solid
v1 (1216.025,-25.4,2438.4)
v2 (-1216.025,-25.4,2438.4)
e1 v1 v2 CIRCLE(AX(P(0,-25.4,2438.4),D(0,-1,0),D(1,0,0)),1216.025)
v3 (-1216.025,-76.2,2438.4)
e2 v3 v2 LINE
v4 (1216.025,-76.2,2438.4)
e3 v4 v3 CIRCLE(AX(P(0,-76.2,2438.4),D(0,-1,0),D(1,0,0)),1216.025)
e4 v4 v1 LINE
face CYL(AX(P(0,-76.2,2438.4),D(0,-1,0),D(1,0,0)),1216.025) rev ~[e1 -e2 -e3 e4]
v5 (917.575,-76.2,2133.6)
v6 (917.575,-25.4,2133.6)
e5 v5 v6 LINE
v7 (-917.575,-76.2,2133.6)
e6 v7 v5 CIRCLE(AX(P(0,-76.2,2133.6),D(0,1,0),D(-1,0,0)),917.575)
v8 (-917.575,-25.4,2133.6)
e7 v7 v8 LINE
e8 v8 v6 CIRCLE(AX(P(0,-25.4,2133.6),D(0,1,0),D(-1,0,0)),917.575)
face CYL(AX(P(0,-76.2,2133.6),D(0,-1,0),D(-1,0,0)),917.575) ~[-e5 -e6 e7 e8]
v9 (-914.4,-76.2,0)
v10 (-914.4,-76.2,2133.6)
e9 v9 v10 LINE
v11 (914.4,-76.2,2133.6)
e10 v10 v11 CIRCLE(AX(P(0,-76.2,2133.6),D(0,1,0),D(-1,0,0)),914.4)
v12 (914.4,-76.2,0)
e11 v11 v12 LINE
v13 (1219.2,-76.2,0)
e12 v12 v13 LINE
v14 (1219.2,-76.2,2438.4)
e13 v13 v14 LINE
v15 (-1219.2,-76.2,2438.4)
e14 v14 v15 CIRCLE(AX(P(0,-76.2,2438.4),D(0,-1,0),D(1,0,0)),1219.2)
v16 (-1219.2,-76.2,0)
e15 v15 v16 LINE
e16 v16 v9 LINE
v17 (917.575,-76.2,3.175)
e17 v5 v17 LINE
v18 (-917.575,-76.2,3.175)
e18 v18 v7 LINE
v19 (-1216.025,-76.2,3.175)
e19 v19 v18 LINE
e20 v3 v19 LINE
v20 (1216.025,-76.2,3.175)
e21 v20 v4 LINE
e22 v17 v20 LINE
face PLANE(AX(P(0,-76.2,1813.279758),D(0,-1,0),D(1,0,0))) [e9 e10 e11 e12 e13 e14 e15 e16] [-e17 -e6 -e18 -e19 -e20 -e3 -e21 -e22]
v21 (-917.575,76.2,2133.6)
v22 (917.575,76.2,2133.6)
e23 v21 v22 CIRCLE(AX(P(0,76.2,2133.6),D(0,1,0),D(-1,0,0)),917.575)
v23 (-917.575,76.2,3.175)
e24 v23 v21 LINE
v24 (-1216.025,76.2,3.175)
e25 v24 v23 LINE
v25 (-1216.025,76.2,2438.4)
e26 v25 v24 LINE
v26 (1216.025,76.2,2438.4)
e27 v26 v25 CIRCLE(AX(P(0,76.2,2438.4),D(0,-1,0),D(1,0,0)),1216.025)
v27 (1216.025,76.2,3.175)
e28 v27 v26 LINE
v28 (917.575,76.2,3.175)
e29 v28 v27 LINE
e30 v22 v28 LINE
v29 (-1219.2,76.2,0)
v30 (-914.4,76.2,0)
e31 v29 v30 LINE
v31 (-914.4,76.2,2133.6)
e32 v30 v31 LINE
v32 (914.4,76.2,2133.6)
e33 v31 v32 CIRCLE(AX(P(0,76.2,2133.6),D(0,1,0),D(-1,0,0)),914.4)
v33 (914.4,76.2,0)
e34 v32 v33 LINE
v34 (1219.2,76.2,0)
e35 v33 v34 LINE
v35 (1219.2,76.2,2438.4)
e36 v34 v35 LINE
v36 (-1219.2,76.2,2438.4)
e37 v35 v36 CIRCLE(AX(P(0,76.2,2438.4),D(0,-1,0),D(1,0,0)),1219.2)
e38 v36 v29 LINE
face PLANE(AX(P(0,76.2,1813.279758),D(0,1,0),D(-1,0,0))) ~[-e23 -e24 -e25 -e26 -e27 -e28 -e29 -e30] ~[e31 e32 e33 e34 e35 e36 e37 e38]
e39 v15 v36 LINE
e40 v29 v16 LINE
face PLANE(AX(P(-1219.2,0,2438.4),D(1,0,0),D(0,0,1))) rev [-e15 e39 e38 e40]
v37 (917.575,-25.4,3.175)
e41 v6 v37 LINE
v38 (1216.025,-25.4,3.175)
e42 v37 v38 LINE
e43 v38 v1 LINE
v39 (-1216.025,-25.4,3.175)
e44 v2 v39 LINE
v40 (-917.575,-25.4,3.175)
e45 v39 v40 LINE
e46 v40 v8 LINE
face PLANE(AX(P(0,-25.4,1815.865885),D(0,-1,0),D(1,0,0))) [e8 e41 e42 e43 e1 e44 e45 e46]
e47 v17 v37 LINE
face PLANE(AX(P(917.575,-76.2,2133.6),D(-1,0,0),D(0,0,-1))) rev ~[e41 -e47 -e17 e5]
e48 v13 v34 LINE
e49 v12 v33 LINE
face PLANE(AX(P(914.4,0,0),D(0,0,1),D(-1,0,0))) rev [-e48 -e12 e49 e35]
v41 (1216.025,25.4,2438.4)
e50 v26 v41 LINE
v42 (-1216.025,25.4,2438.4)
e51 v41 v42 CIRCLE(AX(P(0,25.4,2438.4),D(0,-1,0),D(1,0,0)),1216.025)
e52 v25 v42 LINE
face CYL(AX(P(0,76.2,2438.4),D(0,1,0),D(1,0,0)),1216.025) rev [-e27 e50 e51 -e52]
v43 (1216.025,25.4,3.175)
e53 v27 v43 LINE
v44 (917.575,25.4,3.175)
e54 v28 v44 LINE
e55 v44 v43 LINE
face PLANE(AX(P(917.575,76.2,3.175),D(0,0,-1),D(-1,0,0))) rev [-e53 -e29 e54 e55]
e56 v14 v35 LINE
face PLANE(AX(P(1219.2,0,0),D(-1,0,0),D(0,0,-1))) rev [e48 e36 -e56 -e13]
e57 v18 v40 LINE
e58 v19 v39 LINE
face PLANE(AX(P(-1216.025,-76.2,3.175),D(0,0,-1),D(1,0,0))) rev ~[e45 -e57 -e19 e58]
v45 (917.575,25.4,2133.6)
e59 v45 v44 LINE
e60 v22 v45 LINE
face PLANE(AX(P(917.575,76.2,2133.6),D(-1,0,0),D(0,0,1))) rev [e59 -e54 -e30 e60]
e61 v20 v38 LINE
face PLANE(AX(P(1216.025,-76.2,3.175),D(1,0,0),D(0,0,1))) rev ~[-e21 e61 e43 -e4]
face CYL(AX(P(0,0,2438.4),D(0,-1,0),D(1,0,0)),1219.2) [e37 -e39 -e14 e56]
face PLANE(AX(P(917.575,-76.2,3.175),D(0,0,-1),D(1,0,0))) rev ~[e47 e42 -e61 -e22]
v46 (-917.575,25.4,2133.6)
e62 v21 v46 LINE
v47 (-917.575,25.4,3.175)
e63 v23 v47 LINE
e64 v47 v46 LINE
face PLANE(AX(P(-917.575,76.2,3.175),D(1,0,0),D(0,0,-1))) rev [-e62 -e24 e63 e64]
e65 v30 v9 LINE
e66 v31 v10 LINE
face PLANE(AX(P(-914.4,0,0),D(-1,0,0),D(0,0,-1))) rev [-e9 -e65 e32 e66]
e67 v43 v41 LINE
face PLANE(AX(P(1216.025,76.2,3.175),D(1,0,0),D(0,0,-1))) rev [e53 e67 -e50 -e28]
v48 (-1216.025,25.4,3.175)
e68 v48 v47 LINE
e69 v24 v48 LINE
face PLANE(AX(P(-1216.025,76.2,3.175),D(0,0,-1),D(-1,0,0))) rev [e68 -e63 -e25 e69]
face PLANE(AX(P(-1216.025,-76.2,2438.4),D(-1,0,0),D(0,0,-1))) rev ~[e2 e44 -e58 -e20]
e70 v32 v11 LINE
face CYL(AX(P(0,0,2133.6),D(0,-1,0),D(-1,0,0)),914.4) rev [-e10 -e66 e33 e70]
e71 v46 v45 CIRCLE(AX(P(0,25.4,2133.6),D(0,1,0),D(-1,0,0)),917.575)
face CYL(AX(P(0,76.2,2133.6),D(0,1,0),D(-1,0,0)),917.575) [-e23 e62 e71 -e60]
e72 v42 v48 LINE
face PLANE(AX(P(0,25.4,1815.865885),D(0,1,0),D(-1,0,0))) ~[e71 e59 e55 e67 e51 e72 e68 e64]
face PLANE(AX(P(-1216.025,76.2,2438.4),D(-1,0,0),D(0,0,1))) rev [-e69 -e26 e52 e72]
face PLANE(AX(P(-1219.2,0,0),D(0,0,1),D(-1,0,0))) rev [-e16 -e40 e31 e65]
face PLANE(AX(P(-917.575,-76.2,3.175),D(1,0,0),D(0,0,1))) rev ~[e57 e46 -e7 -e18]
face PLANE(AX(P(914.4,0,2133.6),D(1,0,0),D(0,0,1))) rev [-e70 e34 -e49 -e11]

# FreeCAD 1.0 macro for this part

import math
import FreeCAD as App
import Part
import Sketcher

V = App.Vector
Q = App.Units.Quantity

doc = App.newDocument("Part")
body = doc.addObject("PartDesign::Body", "Body")

# Sketch on XZ plane
sketch1 = body.newObject("Sketcher::SketchObject", "Sketch")
sketch1.AttachmentSupport = (doc.getObject("XZ_Plane"), [""])
sketch1.MapMode = "FlatFace"
sketch1.addGeometry(Part.LineSegment(V(-1219, 2438, 0), V(-1219, 0, 0)), False)
sketch1.addGeometry(Part.LineSegment(V(-1219, 0, 0), V(-914, 0, 0)), False)
sketch1.addGeometry(Part.LineSegment(V(-914, 0, 0), V(-914, 2134, 0)), False)
sketch1.addGeometry(Part.ArcOfCircle(Part.Circle(V(0, 2134, 0), V(0, 0, 1), 914), math.radians(0), math.radians(180)), False)
sketch1.addGeometry(Part.LineSegment(V(914, 2134, 0), V(914, 0, 0)), False)
sketch1.addGeometry(Part.LineSegment(V(914, 0, 0), V(1219, 0, 0)), False)
sketch1.addGeometry(Part.LineSegment(V(1219, 0, 0), V(1219, 2438, 0)), False)
sketch1.addGeometry(Part.ArcOfCircle(Part.Circle(V(0, 2438, 0), V(0, 0, 1), 1219), math.radians(0), math.radians(180)), False)
sketch1.addConstraint(Sketcher.Constraint("Coincident", 0, 2, 1, 1))
sketch1.addConstraint(Sketcher.Constraint("Coincident", 1, 2, 2, 1))
sketch1.addConstraint(Sketcher.Constraint("Coincident", 2, 2, 3, 2))
sketch1.addConstraint(Sketcher.Constraint("Coincident", 3, 1, 4, 1))
sketch1.addConstraint(Sketcher.Constraint("Coincident", 4, 2, 5, 1))
sketch1.addConstraint(Sketcher.Constraint("Coincident", 5, 2, 6, 1))
sketch1.addConstraint(Sketcher.Constraint("Coincident", 6, 2, 7, 1))
sketch1.addConstraint(Sketcher.Constraint("Coincident", 7, 2, 0, 1))
sketch1.addConstraint(Sketcher.Constraint("Vertical", 0))
sketch1.addConstraint(Sketcher.Constraint("Horizontal", 1))
sketch1.addConstraint(Sketcher.Constraint("Vertical", 2))
sketch1.addConstraint(Sketcher.Constraint("Vertical", 4))
sketch1.addConstraint(Sketcher.Constraint("Horizontal", 5))
sketch1.addConstraint(Sketcher.Constraint("Vertical", 6))
sketch1.addConstraint(Sketcher.Constraint("Symmetric", 1, 2, 4, 2, -1, 1))
sketch1.addConstraint(Sketcher.Constraint("Symmetric", 0, 2, 5, 2, -2))
sketch1.addConstraint(Sketcher.Constraint("Horizontal", 3, 3, 2, 2))
sketch1.addConstraint(Sketcher.Constraint("Horizontal", 7, 3, 6, 2))
sketch1.addConstraint(Sketcher.Constraint("Equal", 2, 4))
sketch1.addConstraint(Sketcher.Constraint("Equal", 0, 6))
sketch1.addConstraint(Sketcher.Constraint("Radius", 3, Q("36 in")))
sketch1.addConstraint(Sketcher.Constraint("Radius", 7, Q("48 in")))
sketch1.addConstraint(Sketcher.Constraint("DistanceY", 0, 2, 0, 1, Q("96 in")))
sketch1.addConstraint(Sketcher.Constraint("DistanceY", 2, 1, 2, 2, Q("84 in")))
pad1 = body.newObject("PartDesign::Pad", "Pad")
pad1.Profile = sketch1
pad1.Length = Q("3 in")

# Sketch on XZ plane
sketch2 = body.newObject("Sketcher::SketchObject", "Sketch001")
sketch2.AttachmentSupport = (doc.getObject("XZ_Plane"), [""])
sketch2.MapMode = "FlatFace"
sketch2.AttachmentOffset = App.Placement(V(0, 0, 3 * 25.4), App.Rotation())
sketch2.addGeometry(Part.ArcOfCircle(Part.Circle(V(0, 2134, 0), V(0, 0, 1), 918), math.radians(0), math.radians(180)), False)
sketch2.addGeometry(Part.LineSegment(V(918, 2134, 0), V(918, 3, 0)), False)
sketch2.addGeometry(Part.LineSegment(V(918, 3, 0), V(1216, 3, 0)), False)
sketch2.addGeometry(Part.LineSegment(V(1216, 3, 0), V(1216, 2438, 0)), False)
sketch2.addGeometry(Part.ArcOfCircle(Part.Circle(V(0, 2438, 0), V(0, 0, 1), 1216), math.radians(0), math.radians(180)), False)
sketch2.addGeometry(Part.LineSegment(V(-1216, 2438, 0), V(-1216, 3, 0)), False)
sketch2.addGeometry(Part.LineSegment(V(-1216, 3, 0), V(-918, 3, 0)), False)
sketch2.addGeometry(Part.LineSegment(V(-918, 3, 0), V(-918, 2134, 0)), False)
sketch2.addConstraint(Sketcher.Constraint("Coincident", 0, 1, 1, 1))
sketch2.addConstraint(Sketcher.Constraint("Coincident", 1, 2, 2, 1))
sketch2.addConstraint(Sketcher.Constraint("Coincident", 2, 2, 3, 1))
sketch2.addConstraint(Sketcher.Constraint("Coincident", 3, 2, 4, 1))
sketch2.addConstraint(Sketcher.Constraint("Coincident", 4, 2, 5, 1))
sketch2.addConstraint(Sketcher.Constraint("Coincident", 5, 2, 6, 1))
sketch2.addConstraint(Sketcher.Constraint("Coincident", 6, 2, 7, 1))
sketch2.addConstraint(Sketcher.Constraint("Coincident", 7, 2, 0, 2))
sketch2.addConstraint(Sketcher.Constraint("Vertical", 1))
sketch2.addConstraint(Sketcher.Constraint("Horizontal", 2))
sketch2.addConstraint(Sketcher.Constraint("Vertical", 3))
sketch2.addConstraint(Sketcher.Constraint("Vertical", 5))
sketch2.addConstraint(Sketcher.Constraint("Horizontal", 6))
sketch2.addConstraint(Sketcher.Constraint("Vertical", 7))
sketch2.addConstraint(Sketcher.Constraint("Symmetric", 2, 2, 5, 2, -2))
sketch2.addConstraint(Sketcher.Constraint("PointOnObject", 0, 3, -2))
sketch2.addConstraint(Sketcher.Constraint("Horizontal", 4, 3, 3, 2))
sketch2.addConstraint(Sketcher.Constraint("Equal", 3, 5))
sketch2.addConstraint(Sketcher.Constraint("Equal", 1, 7))
sketch2.addConstraint(Sketcher.Constraint("DistanceY", -1, 1, 0, 3, Q("84 in")))
sketch2.addConstraint(Sketcher.Constraint("DistanceY", -1, 1, 4, 3, Q("96 in")))
sketch2.addConstraint(Sketcher.Constraint("DistanceY", -1, 1, 7, 2, Q("84 in")))
sketch2.addConstraint(Sketcher.Constraint("Radius", 0, Q("36.125 in")))
sketch2.addConstraint(Sketcher.Constraint("Radius", 4, Q("47.875 in")))
sketch2.addConstraint(Sketcher.Constraint("DistanceY", 1, 2, 1, 1, Q("83.875 in")))
pocket1 = body.newObject("PartDesign::Pocket", "Pocket")
pocket1.Profile = sketch2
pocket1.Length = Q("2 in")
body2 = doc.addObject("PartDesign::Body", "Body001")
doc.recompute()

body2.BaseFeature = body
doc.recompute()

mirroring = doc.addObject("Part::Mirroring", "Mirroring")
mirroring.Source = body
mirroring.Base = V(0, 0, 2177.935022)
mirroring.Normal = V(0, 1, 0)
body3 = doc.addObject("PartDesign::Body", "Body002")
body3.BaseFeature = mirroring
boolean = body2.newObject("PartDesign::Boolean", "Boolean")
boolean.Type = "Fuse"
boolean.addObjects([body3])
doc.recompute()
mirroring.Visibility = False

doc.recompute()
